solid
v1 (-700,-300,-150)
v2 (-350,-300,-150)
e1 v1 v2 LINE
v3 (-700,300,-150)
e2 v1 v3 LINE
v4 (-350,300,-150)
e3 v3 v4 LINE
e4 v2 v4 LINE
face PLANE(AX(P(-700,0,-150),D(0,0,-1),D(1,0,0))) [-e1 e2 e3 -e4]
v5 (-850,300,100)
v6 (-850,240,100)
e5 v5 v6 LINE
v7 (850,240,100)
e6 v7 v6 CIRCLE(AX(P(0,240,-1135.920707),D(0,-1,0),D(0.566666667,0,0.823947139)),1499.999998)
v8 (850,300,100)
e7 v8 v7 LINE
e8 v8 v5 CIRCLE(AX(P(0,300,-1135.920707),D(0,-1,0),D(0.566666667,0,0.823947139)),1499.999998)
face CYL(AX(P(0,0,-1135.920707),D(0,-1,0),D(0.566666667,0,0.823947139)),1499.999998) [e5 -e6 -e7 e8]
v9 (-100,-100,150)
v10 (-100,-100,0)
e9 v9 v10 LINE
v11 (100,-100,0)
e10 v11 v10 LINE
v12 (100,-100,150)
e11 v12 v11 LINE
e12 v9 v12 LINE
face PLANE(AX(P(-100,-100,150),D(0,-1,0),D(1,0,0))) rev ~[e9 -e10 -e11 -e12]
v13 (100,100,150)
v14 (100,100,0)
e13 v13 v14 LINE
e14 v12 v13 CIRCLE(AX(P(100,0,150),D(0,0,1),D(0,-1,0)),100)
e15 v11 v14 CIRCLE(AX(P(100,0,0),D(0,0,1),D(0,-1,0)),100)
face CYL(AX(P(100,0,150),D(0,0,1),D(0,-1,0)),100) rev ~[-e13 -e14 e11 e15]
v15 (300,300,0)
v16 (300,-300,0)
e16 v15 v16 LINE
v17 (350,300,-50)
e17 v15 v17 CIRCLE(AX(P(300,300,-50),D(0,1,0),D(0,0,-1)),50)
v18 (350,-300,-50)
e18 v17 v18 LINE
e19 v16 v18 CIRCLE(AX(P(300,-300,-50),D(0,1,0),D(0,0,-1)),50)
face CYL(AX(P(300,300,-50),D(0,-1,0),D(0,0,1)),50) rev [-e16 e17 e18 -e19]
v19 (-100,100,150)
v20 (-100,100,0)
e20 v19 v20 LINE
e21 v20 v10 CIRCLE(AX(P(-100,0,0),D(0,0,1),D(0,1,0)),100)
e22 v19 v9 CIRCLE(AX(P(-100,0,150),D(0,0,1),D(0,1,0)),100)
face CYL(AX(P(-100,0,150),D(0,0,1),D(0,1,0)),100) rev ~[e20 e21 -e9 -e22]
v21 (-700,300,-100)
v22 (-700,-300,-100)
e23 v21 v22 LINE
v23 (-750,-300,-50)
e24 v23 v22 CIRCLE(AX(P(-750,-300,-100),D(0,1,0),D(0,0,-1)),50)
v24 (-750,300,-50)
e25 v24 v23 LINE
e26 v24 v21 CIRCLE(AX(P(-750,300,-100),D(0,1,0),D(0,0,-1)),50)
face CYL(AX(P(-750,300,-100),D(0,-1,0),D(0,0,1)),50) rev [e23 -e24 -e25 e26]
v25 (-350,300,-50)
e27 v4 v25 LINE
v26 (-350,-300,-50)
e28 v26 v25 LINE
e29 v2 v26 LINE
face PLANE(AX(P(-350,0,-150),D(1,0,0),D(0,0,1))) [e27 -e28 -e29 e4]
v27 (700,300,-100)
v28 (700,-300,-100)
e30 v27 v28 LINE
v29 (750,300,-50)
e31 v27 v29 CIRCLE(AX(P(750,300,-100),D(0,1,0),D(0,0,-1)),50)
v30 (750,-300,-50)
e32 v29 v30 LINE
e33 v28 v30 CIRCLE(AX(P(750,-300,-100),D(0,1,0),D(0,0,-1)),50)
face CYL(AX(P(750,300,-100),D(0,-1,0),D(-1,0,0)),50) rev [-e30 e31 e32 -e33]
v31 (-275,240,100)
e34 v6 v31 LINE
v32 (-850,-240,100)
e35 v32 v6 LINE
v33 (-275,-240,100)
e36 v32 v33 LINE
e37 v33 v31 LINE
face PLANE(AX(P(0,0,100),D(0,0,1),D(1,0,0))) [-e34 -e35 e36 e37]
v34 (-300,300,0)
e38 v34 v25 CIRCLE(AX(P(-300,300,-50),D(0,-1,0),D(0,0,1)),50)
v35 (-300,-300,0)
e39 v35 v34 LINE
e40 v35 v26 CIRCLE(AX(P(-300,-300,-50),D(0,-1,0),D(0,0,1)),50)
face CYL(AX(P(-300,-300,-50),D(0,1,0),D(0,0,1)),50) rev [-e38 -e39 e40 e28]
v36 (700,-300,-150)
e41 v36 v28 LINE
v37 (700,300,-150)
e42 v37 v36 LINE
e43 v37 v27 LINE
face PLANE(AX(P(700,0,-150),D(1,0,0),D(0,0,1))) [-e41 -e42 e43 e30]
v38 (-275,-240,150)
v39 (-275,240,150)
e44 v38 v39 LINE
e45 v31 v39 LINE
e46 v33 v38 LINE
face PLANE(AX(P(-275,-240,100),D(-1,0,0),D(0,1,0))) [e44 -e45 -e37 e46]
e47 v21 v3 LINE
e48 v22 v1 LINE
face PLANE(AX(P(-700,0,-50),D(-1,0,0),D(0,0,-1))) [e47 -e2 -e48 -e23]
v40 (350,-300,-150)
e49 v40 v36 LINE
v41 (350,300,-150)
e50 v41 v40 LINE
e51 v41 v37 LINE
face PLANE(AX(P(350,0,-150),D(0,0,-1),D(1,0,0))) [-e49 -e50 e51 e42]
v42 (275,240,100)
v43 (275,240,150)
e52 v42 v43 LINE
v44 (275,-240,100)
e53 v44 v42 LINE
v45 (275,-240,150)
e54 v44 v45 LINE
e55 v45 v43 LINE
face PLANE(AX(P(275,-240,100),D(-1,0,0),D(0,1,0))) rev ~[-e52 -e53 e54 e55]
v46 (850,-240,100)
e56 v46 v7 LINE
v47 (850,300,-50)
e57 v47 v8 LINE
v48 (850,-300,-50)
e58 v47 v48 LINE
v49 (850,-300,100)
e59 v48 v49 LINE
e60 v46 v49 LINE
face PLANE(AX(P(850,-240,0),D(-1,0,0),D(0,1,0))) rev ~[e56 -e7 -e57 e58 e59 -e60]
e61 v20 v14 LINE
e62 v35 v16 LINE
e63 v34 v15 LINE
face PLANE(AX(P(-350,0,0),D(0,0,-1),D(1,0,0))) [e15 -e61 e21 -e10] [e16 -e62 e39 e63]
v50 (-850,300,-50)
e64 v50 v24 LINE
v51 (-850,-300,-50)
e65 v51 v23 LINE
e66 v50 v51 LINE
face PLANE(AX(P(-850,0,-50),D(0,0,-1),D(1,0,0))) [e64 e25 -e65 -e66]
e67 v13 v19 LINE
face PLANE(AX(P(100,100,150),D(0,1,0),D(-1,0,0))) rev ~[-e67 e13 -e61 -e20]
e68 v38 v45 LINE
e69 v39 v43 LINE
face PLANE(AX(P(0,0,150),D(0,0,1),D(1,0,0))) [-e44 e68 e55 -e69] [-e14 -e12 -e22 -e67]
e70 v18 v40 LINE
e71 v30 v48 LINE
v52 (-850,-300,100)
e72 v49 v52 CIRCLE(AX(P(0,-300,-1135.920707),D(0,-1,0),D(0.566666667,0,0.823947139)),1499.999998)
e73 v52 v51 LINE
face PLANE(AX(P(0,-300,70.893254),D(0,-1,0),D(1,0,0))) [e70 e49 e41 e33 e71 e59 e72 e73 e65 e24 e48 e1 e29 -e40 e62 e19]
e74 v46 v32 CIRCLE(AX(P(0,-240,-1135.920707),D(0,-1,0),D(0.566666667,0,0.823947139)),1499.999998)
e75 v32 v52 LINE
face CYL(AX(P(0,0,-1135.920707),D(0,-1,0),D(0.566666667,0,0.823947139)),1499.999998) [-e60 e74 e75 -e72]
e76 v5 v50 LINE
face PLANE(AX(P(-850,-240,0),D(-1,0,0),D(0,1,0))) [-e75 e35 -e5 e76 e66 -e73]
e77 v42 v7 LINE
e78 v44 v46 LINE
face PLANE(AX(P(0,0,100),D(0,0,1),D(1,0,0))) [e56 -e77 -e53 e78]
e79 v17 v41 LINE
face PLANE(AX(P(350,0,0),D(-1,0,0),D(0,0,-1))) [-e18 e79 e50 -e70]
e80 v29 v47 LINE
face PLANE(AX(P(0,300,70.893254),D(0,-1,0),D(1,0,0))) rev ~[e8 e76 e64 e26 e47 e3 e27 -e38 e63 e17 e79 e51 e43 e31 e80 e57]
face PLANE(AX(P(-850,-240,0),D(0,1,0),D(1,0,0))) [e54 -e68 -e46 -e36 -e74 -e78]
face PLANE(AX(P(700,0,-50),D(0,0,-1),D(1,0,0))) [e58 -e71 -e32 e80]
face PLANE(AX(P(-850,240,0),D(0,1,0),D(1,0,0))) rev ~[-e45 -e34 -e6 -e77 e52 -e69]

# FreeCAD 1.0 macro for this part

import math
import FreeCAD as App
import Part
import Sketcher
Q = App.Units.Quantity


def edges_at(feature, points):
    """Names of the edges that pass closest to the given points."""
    edges = feature.Shape.Edges
    near = lambda p: min(range(len(edges)), key=lambda i: edges[i].distToShape(Part.Vertex(*p))[0])
    return sorted({f"Edge{near(p) + 1}" for p in points})

doc = App.newDocument("Part")
body = doc.addObject("PartDesign::Body", "Body")

# Sketch on XZ plane
sketch1 = body.newObject("Sketcher::SketchObject", "Sketch")
sketch1.AttachmentSupport = (doc.getObject("XZ_Plane"), [""])
sketch1.MapMode = "FlatFace"
sketch1.addGeometry([
    Part.LineSegment(App.Vector(-350, 0, 0), App.Vector(350, 0, 0)),  # 0
    Part.LineSegment(App.Vector(350, 0, 0), App.Vector(350, -150, 0)),  # 1
    Part.LineSegment(App.Vector(350, -150, 0), App.Vector(700, -150, 0)),  # 2
    Part.LineSegment(App.Vector(700, -150, 0), App.Vector(700, -50, 0)),  # 3
    Part.LineSegment(App.Vector(700, -50, 0), App.Vector(850, -50, 0)),  # 4
    Part.LineSegment(App.Vector(850, -50, 0), App.Vector(850, 100, 0)),  # 5
    Part.ArcOfCircle(Part.Circle(App.Vector(0, -1135.920707, 0), App.Vector(0, 0, 1), 1499.999998), math.radians(55.481892), math.radians(124.518108)),  # 6
    Part.LineSegment(App.Vector(-850, 100, 0), App.Vector(-850, -50, 0)),  # 7
    Part.LineSegment(App.Vector(-850, -50, 0), App.Vector(-700, -50, 0)),  # 8
    Part.LineSegment(App.Vector(-700, -50, 0), App.Vector(-700, -150, 0)),  # 9
    Part.LineSegment(App.Vector(-700, -150, 0), App.Vector(-350, -150, 0)),  # 10
    Part.LineSegment(App.Vector(-350, -150, 0), App.Vector(-350, 0, 0)),  # 11
], False)
sketch1.addConstraint([
    Sketcher.Constraint("Coincident", 0, 2, 1, 1),
    Sketcher.Constraint("Coincident", 1, 2, 2, 1),
    Sketcher.Constraint("Coincident", 2, 2, 3, 1),
    Sketcher.Constraint("Coincident", 3, 2, 4, 1),
    Sketcher.Constraint("Coincident", 4, 2, 5, 1),
    Sketcher.Constraint("Coincident", 5, 2, 6, 1),
    Sketcher.Constraint("Coincident", 6, 2, 7, 1),
    Sketcher.Constraint("Coincident", 7, 2, 8, 1),
    Sketcher.Constraint("Coincident", 8, 2, 9, 1),
    Sketcher.Constraint("Coincident", 9, 2, 10, 1),
    Sketcher.Constraint("Coincident", 10, 2, 11, 1),
    Sketcher.Constraint("Coincident", 11, 2, 0, 1),
    Sketcher.Constraint("Horizontal", 0),
    Sketcher.Constraint("Vertical", 1),
    Sketcher.Constraint("Horizontal", 2),
    Sketcher.Constraint("Vertical", 3),
    Sketcher.Constraint("Horizontal", 4),
    Sketcher.Constraint("Vertical", 5),
    Sketcher.Constraint("Vertical", 7),
    Sketcher.Constraint("Horizontal", 8),
    Sketcher.Constraint("Vertical", 9),
    Sketcher.Constraint("Horizontal", 10),
    Sketcher.Constraint("Vertical", 11),
    Sketcher.Constraint("Symmetric", 0, 2, 11, 2, -1, 1),
    Sketcher.Constraint("Symmetric", 4, 2, 7, 2, -2),
    Sketcher.Constraint("Symmetric", 2, 2, 9, 2, -2),
    Sketcher.Constraint("PointOnObject", 6, 3, -2),
    Sketcher.Constraint("Equal", 8, 1),
    Sketcher.Constraint("Equal", 1, 5),
    Sketcher.Constraint("DistanceX", 0, 1, 0, 2, Q("700 mm")),
    Sketcher.Constraint("DistanceX", 2, 1, 2, 2, Q("350 mm")),
    Sketcher.Constraint("DistanceX", 4, 1, 4, 2, Q("150 mm")),
    Sketcher.Constraint("DistanceY", 3, 1, 3, 2, Q("100 mm")),
    Sketcher.Constraint("Radius", 6, Q("1499.999998 mm")),
])
pad1 = body.newObject("PartDesign::Pad", "Pad")
pad1.Profile = sketch1
pad1.Length = 600
pad1.Midplane = True

# Sketch on XY plane
sketch2 = body.newObject("Sketcher::SketchObject", "Sketch001")
sketch2.AttachmentSupport = (doc.getObject("XY_Plane"), [""])
sketch2.MapMode = "FlatFace"
sketch2.addGeometry([
    Part.LineSegment(App.Vector(-850, 240, 0), App.Vector(-850, -240, 0)),
    Part.LineSegment(App.Vector(-850, -240, 0), App.Vector(850, -240, 0)),
    Part.LineSegment(App.Vector(850, -240, 0), App.Vector(850, 240, 0)),
    Part.LineSegment(App.Vector(850, 240, 0), App.Vector(-850, 240, 0)),
], False)
sketch2.addConstraint([
    Sketcher.Constraint("Coincident", 0, 2, 1, 1),
    Sketcher.Constraint("Coincident", 1, 2, 2, 1),
    Sketcher.Constraint("Coincident", 2, 2, 3, 1),
    Sketcher.Constraint("Coincident", 3, 2, 0, 1),
    Sketcher.Constraint("Vertical", 0),
    Sketcher.Constraint("Horizontal", 1),
    Sketcher.Constraint("Vertical", 2),
    Sketcher.Constraint("Horizontal", 3),
    Sketcher.Constraint("Symmetric", 0, 2, 2, 2, -1, 1),
    Sketcher.Constraint("DistanceX", 1, 1, 1, 2, Q("1700 mm")),
    Sketcher.Constraint("DistanceY", 0, 2, 0, 1, Q("480 mm")),
])
pocket1 = body.newObject("PartDesign::Pocket", "Pocket")
pocket1.Profile = sketch2
pocket1.Type = "ThroughAll"
pocket1.Reversed = True

# Sketch on XY plane
sketch3 = body.newObject("Sketcher::SketchObject", "Sketch002")
sketch3.AttachmentSupport = (doc.getObject("XY_Plane"), [""])
sketch3.MapMode = "FlatFace"
sketch3.addGeometry([
    Part.LineSegment(App.Vector(-850, 240, 0), App.Vector(-850, -240, 0)),
    Part.LineSegment(App.Vector(-850, -240, 0), App.Vector(850, -240, 0)),
    Part.LineSegment(App.Vector(850, -240, 0), App.Vector(850, 240, 0)),
    Part.LineSegment(App.Vector(850, 240, 0), App.Vector(-850, 240, 0)),
], False)
sketch3.addConstraint([
    Sketcher.Constraint("Coincident", 0, 2, 1, 1),
    Sketcher.Constraint("Coincident", 1, 2, 2, 1),
    Sketcher.Constraint("Coincident", 2, 2, 3, 1),
    Sketcher.Constraint("Coincident", 3, 2, 0, 1),
    Sketcher.Constraint("Vertical", 0),
    Sketcher.Constraint("Horizontal", 1),
    Sketcher.Constraint("Vertical", 2),
    Sketcher.Constraint("Horizontal", 3),
    Sketcher.Constraint("Symmetric", 0, 2, 2, 2, -1, 1),
    Sketcher.Constraint("DistanceX", 1, 1, 1, 2, Q("1700 mm")),
    Sketcher.Constraint("DistanceY", 0, 2, 0, 1, Q("480 mm")),
])
pad2 = body.newObject("PartDesign::Pad", "Pad001")
pad2.Profile = sketch3
pad2.Length = 100

# Sketch on XY plane
sketch4 = body.newObject("Sketcher::SketchObject", "Sketch003")
sketch4.AttachmentSupport = (doc.getObject("XY_Plane"), [""])
sketch4.MapMode = "FlatFace"
sketch4.AttachmentOffset = App.Placement(App.Vector(0, 0, 100), App.Rotation())
sketch4.addGeometry([
    Part.LineSegment(App.Vector(-275, 240, 0), App.Vector(-275, -240, 0)),
    Part.LineSegment(App.Vector(-275, -240, 0), App.Vector(275, -240, 0)),
    Part.LineSegment(App.Vector(275, -240, 0), App.Vector(275, 240, 0)),
    Part.LineSegment(App.Vector(275, 240, 0), App.Vector(-275, 240, 0)),
], False)
sketch4.addConstraint([
    Sketcher.Constraint("Coincident", 0, 2, 1, 1),
    Sketcher.Constraint("Coincident", 1, 2, 2, 1),
    Sketcher.Constraint("Coincident", 2, 2, 3, 1),
    Sketcher.Constraint("Coincident", 3, 2, 0, 1),
    Sketcher.Constraint("Vertical", 0),
    Sketcher.Constraint("Horizontal", 1),
    Sketcher.Constraint("Vertical", 2),
    Sketcher.Constraint("Horizontal", 3),
    Sketcher.Constraint("Symmetric", 0, 2, 2, 2, -1, 1),
    Sketcher.Constraint("DistanceX", 1, 1, 1, 2, Q("550 mm")),
    Sketcher.Constraint("DistanceY", 0, 2, 0, 1, Q("480 mm")),
])
pad3 = body.newObject("PartDesign::Pad", "Pad002")
pad3.Profile = sketch4
pad3.Length = 50

# Sketch on XY plane
sketch5 = body.newObject("Sketcher::SketchObject", "Sketch004")
sketch5.AttachmentSupport = (doc.getObject("XY_Plane"), [""])
sketch5.MapMode = "FlatFace"
sketch5.AttachmentOffset = App.Placement(App.Vector(0, 0, 150), App.Rotation())
sketch5.addGeometry([
    Part.LineSegment(App.Vector(-100, -100, 0), App.Vector(100, -100, 0)),
    Part.ArcOfCircle(Part.Circle(App.Vector(100, 0, 0), App.Vector(0, 0, 1), 100), math.radians(-90), math.radians(90)),
    Part.LineSegment(App.Vector(100, 100, 0), App.Vector(-100, 100, 0)),
    Part.ArcOfCircle(Part.Circle(App.Vector(-100, 0, 0), App.Vector(0, 0, 1), 100), math.radians(90), math.radians(270)),
], False)
sketch5.addConstraint([
    Sketcher.Constraint("Tangent", 0, 2, 1, 1),
    Sketcher.Constraint("Tangent", 1, 2, 2, 1),
    Sketcher.Constraint("Tangent", 2, 2, 3, 1),
    Sketcher.Constraint("Tangent", 3, 2, 0, 1),
    Sketcher.Constraint("Horizontal", 0),
    Sketcher.Constraint("Horizontal", 2),
    Sketcher.Constraint("Symmetric", 1, 3, 3, 3, -1, 1),
    Sketcher.Constraint("Radius", 1, Q("100 mm")),
    Sketcher.Constraint("DistanceX", 0, 1, 0, 2, Q("200 mm")),
])
pocket2 = body.newObject("PartDesign::Pocket", "Pocket001")
pocket2.Profile = sketch5
pocket2.Type = "ThroughAll"
doc.recompute()

fillet = body.newObject("PartDesign::Fillet", "Fillet")
fillet.Base = (pocket2, edges_at(pocket2, [
    (-350, 0, 0),
    (350, 0, 0),
    (-700, 0, -50),
    (700, 0, -50),
]))
fillet.Radius = 50

doc.recompute()
